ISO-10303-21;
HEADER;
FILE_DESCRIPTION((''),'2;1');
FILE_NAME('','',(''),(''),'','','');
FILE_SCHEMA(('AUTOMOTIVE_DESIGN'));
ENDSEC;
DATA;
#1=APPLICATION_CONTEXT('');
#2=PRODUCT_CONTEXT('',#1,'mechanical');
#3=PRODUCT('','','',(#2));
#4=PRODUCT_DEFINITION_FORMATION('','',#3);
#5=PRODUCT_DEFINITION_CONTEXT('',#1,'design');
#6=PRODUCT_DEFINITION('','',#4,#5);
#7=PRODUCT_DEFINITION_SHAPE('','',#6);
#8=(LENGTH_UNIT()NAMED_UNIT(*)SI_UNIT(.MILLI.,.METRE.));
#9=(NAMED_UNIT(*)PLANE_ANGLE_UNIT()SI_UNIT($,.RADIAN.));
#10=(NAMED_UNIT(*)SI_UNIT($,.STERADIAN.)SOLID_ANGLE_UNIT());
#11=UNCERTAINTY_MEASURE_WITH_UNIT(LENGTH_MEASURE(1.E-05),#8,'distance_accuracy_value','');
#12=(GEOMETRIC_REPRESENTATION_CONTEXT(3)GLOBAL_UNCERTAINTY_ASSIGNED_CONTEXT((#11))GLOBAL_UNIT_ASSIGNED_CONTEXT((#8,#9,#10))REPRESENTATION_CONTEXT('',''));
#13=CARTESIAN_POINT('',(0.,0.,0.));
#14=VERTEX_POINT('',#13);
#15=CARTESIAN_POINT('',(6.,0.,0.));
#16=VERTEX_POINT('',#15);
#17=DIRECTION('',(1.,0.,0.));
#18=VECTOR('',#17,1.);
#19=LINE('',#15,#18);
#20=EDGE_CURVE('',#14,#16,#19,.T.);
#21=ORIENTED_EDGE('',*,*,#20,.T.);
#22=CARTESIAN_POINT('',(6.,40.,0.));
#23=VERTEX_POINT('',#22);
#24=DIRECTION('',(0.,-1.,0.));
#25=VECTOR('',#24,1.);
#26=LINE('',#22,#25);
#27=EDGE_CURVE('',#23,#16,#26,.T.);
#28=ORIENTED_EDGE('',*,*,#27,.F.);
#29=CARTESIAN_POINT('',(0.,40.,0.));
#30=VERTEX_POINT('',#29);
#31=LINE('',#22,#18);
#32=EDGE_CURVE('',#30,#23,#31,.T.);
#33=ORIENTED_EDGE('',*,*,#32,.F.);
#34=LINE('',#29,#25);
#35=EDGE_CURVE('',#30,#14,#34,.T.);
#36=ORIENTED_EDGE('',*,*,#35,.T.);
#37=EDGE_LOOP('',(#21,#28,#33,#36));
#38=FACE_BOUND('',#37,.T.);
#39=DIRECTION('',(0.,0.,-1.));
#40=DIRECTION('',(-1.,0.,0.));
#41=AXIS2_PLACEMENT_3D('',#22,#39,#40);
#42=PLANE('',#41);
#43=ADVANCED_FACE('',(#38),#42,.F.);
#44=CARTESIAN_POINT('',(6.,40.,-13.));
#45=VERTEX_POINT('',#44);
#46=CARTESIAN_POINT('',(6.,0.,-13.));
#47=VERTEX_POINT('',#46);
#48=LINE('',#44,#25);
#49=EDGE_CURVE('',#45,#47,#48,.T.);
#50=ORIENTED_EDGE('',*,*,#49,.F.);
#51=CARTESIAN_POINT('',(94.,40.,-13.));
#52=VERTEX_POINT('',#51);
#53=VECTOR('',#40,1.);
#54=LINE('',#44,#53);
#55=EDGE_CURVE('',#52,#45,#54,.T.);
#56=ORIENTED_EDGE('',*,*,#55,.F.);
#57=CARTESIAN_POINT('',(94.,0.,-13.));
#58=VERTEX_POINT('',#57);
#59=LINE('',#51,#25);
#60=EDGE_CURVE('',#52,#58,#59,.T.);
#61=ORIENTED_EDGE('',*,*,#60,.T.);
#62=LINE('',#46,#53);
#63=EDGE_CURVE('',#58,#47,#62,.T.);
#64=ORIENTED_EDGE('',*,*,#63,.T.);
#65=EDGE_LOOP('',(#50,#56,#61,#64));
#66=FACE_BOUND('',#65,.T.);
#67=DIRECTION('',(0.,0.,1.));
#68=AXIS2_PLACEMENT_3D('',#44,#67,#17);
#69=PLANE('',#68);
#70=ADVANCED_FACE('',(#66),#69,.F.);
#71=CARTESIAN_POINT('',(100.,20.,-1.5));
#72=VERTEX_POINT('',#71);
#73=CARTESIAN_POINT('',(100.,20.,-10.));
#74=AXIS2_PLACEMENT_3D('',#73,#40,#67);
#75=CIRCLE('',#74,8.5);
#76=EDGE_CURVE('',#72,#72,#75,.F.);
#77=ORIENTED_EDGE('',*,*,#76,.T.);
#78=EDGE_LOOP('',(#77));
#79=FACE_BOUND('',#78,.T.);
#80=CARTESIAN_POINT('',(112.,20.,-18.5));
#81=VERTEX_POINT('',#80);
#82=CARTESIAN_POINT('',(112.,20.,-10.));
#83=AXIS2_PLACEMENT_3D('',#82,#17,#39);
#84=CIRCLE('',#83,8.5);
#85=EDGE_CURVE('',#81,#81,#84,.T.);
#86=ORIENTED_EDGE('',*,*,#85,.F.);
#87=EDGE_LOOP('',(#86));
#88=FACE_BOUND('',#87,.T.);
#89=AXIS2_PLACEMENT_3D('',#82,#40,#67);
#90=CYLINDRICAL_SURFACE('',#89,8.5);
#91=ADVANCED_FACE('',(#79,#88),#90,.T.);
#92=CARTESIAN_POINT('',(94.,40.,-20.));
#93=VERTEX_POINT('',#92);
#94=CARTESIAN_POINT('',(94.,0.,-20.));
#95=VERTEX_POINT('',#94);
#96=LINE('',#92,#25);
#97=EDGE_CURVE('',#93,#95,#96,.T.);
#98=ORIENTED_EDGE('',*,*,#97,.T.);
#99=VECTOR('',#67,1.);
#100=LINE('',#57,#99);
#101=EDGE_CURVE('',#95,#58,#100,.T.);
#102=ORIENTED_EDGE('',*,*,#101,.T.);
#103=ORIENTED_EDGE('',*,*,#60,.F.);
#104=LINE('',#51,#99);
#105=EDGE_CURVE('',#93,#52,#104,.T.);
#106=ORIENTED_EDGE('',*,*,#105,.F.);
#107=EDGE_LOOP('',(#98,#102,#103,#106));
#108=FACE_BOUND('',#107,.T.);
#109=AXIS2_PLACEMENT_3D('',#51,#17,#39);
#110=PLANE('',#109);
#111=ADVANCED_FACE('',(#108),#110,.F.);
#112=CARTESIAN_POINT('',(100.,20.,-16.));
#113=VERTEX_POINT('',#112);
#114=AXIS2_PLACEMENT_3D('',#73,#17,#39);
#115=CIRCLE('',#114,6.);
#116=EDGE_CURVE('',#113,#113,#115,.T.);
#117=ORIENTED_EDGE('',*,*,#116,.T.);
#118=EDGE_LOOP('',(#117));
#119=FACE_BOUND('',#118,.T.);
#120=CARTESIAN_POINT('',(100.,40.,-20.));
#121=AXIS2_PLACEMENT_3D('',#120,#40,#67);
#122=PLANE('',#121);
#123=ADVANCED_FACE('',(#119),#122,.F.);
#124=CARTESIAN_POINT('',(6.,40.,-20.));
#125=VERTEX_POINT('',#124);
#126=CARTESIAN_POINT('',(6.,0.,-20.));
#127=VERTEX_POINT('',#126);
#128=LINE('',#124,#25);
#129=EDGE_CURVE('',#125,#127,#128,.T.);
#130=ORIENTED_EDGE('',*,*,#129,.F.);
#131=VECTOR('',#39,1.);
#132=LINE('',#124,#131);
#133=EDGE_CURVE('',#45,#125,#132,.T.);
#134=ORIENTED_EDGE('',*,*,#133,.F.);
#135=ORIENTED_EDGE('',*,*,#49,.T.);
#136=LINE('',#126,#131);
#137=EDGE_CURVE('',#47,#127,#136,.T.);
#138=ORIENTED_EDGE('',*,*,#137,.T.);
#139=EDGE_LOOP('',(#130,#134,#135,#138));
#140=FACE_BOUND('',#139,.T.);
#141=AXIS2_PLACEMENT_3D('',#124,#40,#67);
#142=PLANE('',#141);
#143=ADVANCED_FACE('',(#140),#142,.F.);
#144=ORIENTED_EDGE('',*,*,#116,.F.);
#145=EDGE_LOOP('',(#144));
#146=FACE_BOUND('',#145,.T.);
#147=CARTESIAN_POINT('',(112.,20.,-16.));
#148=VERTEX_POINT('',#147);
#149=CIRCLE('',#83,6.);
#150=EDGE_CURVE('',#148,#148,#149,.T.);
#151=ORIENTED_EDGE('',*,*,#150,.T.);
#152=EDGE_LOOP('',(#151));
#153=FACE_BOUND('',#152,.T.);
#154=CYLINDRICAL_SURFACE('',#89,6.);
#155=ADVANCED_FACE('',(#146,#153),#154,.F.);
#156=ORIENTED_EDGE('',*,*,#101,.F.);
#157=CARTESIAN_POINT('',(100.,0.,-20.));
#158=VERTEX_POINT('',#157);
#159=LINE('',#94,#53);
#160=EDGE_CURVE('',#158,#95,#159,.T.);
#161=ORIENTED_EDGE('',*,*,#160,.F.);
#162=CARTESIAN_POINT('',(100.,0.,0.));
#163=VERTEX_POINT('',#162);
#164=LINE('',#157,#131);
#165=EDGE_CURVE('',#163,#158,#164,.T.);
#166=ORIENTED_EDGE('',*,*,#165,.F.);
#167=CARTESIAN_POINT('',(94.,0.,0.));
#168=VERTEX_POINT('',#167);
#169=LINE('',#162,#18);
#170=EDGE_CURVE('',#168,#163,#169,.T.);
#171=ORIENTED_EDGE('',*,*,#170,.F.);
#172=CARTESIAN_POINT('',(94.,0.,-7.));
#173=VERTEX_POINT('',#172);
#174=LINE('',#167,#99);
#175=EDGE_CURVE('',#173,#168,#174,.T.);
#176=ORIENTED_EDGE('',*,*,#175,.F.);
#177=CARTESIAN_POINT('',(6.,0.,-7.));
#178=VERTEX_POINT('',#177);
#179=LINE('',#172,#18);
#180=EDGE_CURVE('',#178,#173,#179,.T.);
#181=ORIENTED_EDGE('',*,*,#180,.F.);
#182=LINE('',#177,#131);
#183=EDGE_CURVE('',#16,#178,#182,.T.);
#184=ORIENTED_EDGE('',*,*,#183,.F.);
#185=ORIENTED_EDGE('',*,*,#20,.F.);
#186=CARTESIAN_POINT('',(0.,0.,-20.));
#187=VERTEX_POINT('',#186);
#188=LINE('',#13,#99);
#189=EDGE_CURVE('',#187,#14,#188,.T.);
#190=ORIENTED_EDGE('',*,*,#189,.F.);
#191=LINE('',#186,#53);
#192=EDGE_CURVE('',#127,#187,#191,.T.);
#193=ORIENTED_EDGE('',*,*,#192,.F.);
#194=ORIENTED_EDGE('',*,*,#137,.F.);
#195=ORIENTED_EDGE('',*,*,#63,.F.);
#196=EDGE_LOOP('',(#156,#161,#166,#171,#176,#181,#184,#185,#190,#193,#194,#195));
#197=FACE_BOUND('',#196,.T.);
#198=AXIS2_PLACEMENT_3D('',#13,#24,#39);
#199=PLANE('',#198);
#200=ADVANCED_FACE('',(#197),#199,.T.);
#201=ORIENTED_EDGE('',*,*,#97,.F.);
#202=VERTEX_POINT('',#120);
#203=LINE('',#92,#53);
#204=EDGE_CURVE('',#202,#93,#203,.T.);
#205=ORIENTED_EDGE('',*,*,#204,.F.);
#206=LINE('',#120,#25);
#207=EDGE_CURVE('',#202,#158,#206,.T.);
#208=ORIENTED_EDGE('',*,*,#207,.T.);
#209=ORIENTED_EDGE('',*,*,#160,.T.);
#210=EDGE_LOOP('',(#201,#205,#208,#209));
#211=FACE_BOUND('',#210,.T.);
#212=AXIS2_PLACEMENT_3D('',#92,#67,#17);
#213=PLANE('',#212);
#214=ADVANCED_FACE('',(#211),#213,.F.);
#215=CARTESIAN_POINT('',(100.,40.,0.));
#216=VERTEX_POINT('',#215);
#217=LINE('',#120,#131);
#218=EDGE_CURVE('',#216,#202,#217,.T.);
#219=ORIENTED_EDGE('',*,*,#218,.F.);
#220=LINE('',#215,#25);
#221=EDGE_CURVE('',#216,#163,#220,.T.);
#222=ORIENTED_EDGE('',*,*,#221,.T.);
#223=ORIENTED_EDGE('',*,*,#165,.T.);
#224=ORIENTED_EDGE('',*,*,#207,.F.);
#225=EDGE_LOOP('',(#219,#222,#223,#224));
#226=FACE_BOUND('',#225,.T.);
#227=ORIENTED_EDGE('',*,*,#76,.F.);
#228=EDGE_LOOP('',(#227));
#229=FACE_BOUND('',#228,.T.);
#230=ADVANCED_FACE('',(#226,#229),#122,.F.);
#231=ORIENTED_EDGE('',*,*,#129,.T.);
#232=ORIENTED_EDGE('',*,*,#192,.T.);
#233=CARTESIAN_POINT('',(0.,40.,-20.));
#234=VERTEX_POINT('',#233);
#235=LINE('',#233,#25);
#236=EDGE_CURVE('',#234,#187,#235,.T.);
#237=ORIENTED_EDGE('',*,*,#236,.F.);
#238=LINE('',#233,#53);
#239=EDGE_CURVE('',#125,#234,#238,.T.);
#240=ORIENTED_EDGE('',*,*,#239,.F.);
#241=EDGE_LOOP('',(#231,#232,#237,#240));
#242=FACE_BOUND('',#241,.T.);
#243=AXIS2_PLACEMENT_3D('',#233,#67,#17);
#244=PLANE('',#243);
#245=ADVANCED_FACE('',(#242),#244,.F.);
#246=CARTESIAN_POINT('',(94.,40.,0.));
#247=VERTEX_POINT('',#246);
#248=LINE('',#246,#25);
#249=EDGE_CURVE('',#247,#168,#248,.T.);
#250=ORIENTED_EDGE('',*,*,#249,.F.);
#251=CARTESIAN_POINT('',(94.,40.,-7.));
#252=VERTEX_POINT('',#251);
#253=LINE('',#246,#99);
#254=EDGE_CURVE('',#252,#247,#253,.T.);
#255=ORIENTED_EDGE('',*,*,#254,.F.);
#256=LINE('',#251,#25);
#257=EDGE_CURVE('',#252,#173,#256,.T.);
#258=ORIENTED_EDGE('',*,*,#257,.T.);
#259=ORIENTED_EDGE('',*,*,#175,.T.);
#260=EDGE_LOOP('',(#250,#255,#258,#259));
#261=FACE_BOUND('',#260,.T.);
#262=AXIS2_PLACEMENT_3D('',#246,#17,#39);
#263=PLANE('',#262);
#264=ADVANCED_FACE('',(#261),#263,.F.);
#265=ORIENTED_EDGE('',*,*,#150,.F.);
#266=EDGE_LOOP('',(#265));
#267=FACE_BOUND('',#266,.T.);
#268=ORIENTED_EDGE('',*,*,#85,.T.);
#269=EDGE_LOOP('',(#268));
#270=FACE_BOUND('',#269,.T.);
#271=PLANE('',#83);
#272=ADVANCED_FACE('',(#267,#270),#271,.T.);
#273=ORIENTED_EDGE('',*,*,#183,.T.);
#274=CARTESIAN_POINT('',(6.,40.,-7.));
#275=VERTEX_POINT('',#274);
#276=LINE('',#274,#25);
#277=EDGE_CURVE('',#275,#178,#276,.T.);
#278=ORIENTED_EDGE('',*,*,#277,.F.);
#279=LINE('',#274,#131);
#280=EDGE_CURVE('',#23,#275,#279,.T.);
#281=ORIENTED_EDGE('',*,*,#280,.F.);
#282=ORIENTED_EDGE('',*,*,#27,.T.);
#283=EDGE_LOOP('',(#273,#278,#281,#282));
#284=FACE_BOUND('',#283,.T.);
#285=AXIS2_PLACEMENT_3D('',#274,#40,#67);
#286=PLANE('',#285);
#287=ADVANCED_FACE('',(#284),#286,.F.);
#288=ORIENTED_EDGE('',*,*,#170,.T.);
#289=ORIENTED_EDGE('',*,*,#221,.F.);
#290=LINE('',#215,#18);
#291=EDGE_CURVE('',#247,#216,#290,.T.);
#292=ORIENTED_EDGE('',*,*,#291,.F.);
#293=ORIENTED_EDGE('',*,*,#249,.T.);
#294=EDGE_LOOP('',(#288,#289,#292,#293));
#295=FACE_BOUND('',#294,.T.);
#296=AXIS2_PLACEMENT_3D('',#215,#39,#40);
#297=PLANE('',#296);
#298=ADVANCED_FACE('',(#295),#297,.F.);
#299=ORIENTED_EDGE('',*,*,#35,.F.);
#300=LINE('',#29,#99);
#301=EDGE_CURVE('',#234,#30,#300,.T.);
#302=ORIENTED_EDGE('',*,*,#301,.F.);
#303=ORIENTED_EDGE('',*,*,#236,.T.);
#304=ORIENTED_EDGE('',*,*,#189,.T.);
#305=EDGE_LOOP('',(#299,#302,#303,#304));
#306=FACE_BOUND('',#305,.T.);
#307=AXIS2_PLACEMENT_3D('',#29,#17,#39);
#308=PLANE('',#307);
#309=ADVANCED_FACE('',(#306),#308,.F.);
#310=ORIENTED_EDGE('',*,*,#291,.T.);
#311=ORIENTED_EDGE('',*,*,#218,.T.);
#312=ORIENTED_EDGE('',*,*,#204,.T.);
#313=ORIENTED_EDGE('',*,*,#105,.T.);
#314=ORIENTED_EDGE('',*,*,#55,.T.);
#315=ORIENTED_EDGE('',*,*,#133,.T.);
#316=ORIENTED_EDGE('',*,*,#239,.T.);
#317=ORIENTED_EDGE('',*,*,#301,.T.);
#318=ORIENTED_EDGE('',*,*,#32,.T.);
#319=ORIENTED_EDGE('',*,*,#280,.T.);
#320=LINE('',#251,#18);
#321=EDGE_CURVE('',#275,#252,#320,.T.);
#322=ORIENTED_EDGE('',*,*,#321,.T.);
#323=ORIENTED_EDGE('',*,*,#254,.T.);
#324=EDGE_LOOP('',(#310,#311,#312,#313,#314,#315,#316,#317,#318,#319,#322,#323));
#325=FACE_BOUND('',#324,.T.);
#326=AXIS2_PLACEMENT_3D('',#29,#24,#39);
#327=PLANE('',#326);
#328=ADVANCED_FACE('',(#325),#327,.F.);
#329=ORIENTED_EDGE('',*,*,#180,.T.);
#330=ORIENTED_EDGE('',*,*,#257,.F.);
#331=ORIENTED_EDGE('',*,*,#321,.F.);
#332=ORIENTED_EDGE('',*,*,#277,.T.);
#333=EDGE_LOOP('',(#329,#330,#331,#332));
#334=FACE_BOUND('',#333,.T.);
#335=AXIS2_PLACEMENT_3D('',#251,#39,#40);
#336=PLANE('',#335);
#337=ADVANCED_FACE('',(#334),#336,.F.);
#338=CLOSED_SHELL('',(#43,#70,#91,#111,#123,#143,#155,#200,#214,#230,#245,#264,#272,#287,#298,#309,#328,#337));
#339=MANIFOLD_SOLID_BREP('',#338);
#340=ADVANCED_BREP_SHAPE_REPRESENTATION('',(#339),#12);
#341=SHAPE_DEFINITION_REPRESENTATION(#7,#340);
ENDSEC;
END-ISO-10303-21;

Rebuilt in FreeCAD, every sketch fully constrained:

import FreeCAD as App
import Part
import Sketcher
from FreeCAD import Vector
Q = App.Units.Quantity


def add_polygon(sketch, points):
    """Adds a closed chain of lines whose ends are joined by coincident constraints."""
    first, n = sketch.GeometryCount, len(points)
    for a, b in zip(points, points[1:] + points[:1]):
        sketch.addGeometry(Part.LineSegment(App.Vector(*a, 0), App.Vector(*b, 0)), False)
    for i in range(n):
        sketch.addConstraint(Sketcher.Constraint("Coincident", first + i, 2, first + (i + 1) % n, 1))

doc = App.newDocument("Part")
params = doc.addObject("Spreadsheet::Sheet", "Params")
for row, (alias, value) in enumerate([
    ("sketch1_width", "6 mm"),
    ("sketch1_width2", "88 mm"),
    ("sketch1_height", "20 mm"),
    ("sketch1_height2", "7 mm"),
    ("pad1_length", "40 mm"),
    ("sketch2_diameter", "17 mm"),
    ("sketch2_diameter2", "12 mm"),
    ("pad2_length", "12 mm"),
], start=1):
    params.set(f"A{row}", alias)
    params.set(f"B{row}", "=" + value)
    params.setAlias(f"B{row}", alias)

body = doc.addObject("PartDesign::Body", "Body")

# Sketch on XZ plane
sketch1 = body.newObject("Sketcher::SketchObject", "Sketch")
sketch1.AttachmentSupport = (doc.getObject("XZ_Plane"), [""])
sketch1.MapMode = "FlatFace"
add_polygon(sketch1, [(0, -20), (0, 0), (6, 0), (6, -7), (94, -7), (94, 0), (100, 0), (100, -20), (94, -20), (94, -13), (6, -13), (6, -20)])  # lines 0-11
sketch1.addConstraint([
    Sketcher.Constraint("Vertical", 0),
    Sketcher.Constraint("Horizontal", 1),
    Sketcher.Constraint("Vertical", 2),
    Sketcher.Constraint("Horizontal", 3),
    Sketcher.Constraint("Vertical", 4),
    Sketcher.Constraint("Horizontal", 5),
    Sketcher.Constraint("Vertical", 6),
    Sketcher.Constraint("Horizontal", 7),
    Sketcher.Constraint("Vertical", 8),
    Sketcher.Constraint("Horizontal", 9),
    Sketcher.Constraint("Vertical", 10),
    Sketcher.Constraint("Horizontal", 11),
    Sketcher.Constraint("Coincident", 0, 2, -1, 1),
    Sketcher.Constraint("PointOnObject", 4, 2, -1),
    Sketcher.Constraint("Horizontal", 7, 2, 10, 2),
    Sketcher.Constraint("Vertical", 4, 2, 7, 2),
    Sketcher.Constraint("Vertical", 2, 2, 9, 2),
    Sketcher.Constraint("Equal", 1, 5),
    Sketcher.Constraint("Equal", 4, 8),
    Sketcher.Constraint("DistanceX", 1, 1, 1, 2, Q("6 mm")),
    Sketcher.Constraint("DistanceX", 3, 1, 3, 2, Q("88 mm")),
    Sketcher.Constraint("DistanceY", 0, 1, 0, 2, Q("20 mm")),
    Sketcher.Constraint("DistanceY", 2, 2, 2, 1, Q("7 mm")),
])
sketch1.setExpression("Constraints[31]", "Params.sketch1_width")
sketch1.setExpression("Constraints[32]", "Params.sketch1_width2")
sketch1.setExpression("Constraints[33]", "Params.sketch1_height")
sketch1.setExpression("Constraints[34]", "Params.sketch1_height2")
pad1 = body.newObject("PartDesign::Pad", "Pad")
pad1.Profile = sketch1
pad1.setExpression("Length", "Params.pad1_length")
pad1.Reversed = True

# Sketch on YZ plane
sketch2 = body.newObject("Sketcher::SketchObject", "Sketch001")
sketch2.AttachmentSupport = (doc.getObject("YZ_Plane"), [""])
sketch2.MapMode = "FlatFace"
sketch2.AttachmentOffset = App.Placement(Vector(0, 0, 100), App.Rotation())
sketch2.addGeometry([
    Part.Circle(Vector(20, -10, 0), Vector(0, 0, 1), 8),
    Part.Circle(Vector(20, -10, 0), Vector(0, 0, 1), 6),
], False)
sketch2.addConstraint([
    Sketcher.Constraint("Coincident", 1, 3, 0, 3),
    Sketcher.Constraint("Diameter", 0, Q("17 mm")),
    Sketcher.Constraint("Diameter", 1, Q("12 mm")),
    Sketcher.Constraint("DistanceX", -1, 1, 0, 3, Q("20 mm")),
    Sketcher.Constraint("DistanceY", 0, 3, -1, 1, Q("10 mm")),
])
sketch2.setExpression("Constraints[1]", "Params.sketch2_diameter")
sketch2.setExpression("Constraints[2]", "Params.sketch2_diameter2")
pad2 = body.newObject("PartDesign::Pad", "Pad001")
pad2.Profile = sketch2
pad2.setExpression("Length", "Params.pad2_length")

doc.recompute()
